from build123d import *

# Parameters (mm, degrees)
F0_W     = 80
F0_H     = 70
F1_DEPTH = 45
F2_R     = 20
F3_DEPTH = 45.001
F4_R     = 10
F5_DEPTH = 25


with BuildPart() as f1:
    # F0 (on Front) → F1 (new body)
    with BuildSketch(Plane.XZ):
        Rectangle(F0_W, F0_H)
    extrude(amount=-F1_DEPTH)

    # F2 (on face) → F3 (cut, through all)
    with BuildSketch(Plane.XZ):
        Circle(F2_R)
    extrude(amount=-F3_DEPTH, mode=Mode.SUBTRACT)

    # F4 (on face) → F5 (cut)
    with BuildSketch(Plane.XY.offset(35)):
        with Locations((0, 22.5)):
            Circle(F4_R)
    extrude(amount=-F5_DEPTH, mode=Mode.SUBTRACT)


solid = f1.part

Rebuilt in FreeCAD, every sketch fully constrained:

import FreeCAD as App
import Part
import Sketcher

doc = App.newDocument("Part")
body = doc.addObject("PartDesign::Body", "Body")

# Sketch on XZ plane
sketch1 = body.newObject("Sketcher::SketchObject", "Sketch")
sketch1.AttachmentSupport = (doc.getObject("XZ_Plane"), [""])
sketch1.MapMode = "FlatFace"
sketch1.addGeometry(Part.LineSegment(App.Vector(-40, 35, 0), App.Vector(-40, -35, 0)), False)
sketch1.addGeometry(Part.LineSegment(App.Vector(-40, -35, 0), App.Vector(40, -35, 0)), False)
sketch1.addGeometry(Part.LineSegment(App.Vector(40, -35, 0), App.Vector(40, 35, 0)), False)
sketch1.addGeometry(Part.LineSegment(App.Vector(40, 35, 0), App.Vector(-40, 35, 0)), False)
sketch1.addConstraint(Sketcher.Constraint("Coincident", 0, 2, 1, 1))
sketch1.addConstraint(Sketcher.Constraint("Coincident", 1, 2, 2, 1))
sketch1.addConstraint(Sketcher.Constraint("Coincident", 2, 2, 3, 1))
sketch1.addConstraint(Sketcher.Constraint("Coincident", 3, 2, 0, 1))
sketch1.addConstraint(Sketcher.Constraint("Vertical", 0))
sketch1.addConstraint(Sketcher.Constraint("Horizontal", 1))
sketch1.addConstraint(Sketcher.Constraint("Vertical", 2))
sketch1.addConstraint(Sketcher.Constraint("Horizontal", 3))
sketch1.addConstraint(Sketcher.Constraint("Symmetric", 0, 2, 2, 2, -1, 1))
sketch1.addConstraint(Sketcher.Constraint("DistanceX", 1, 1, 1, 2, 80.0))
sketch1.addConstraint(Sketcher.Constraint("DistanceY", 0, 2, 0, 1, 70.0))
pad1 = body.newObject("PartDesign::Pad", "Pad")
pad1.Profile = sketch1
pad1.Length = 45
pad1.Reversed = True

# Sketch on XZ plane
sketch2 = body.newObject("Sketcher::SketchObject", "Sketch001")
sketch2.AttachmentSupport = (doc.getObject("XZ_Plane"), [""])
sketch2.MapMode = "FlatFace"
sketch2.addGeometry(Part.Circle(App.Vector(0, 0, 0), App.Vector(0, 0, 1), 20), False)
sketch2.addConstraint(Sketcher.Constraint("Coincident", 0, 3, -1, 1))
sketch2.addConstraint(Sketcher.Constraint("Diameter", 0, 40.0))
pocket1 = body.newObject("PartDesign::Pocket", "Pocket")
pocket1.Profile = sketch2
pocket1.Type = "ThroughAll"

# Sketch on XY plane
sketch3 = body.newObject("Sketcher::SketchObject", "Sketch002")
sketch3.AttachmentSupport = (doc.getObject("XY_Plane"), [""])
sketch3.MapMode = "FlatFace"
sketch3.AttachmentOffset = App.Placement(App.Vector(0, 0, 35), App.Rotation())
sketch3.addGeometry(Part.Circle(App.Vector(0, 22.5, 0), App.Vector(0, 0, 1), 10), False)
sketch3.addConstraint(Sketcher.Constraint("PointOnObject", 0, 3, -2))
sketch3.addConstraint(Sketcher.Constraint("Diameter", 0, 20.0))
sketch3.addConstraint(Sketcher.Constraint("DistanceY", -1, 1, 0, 3, 22.5))
pocket2 = body.newObject("PartDesign::Pocket", "Pocket001")
pocket2.Profile = sketch3
pocket2.Length = 25

doc.recompute()
